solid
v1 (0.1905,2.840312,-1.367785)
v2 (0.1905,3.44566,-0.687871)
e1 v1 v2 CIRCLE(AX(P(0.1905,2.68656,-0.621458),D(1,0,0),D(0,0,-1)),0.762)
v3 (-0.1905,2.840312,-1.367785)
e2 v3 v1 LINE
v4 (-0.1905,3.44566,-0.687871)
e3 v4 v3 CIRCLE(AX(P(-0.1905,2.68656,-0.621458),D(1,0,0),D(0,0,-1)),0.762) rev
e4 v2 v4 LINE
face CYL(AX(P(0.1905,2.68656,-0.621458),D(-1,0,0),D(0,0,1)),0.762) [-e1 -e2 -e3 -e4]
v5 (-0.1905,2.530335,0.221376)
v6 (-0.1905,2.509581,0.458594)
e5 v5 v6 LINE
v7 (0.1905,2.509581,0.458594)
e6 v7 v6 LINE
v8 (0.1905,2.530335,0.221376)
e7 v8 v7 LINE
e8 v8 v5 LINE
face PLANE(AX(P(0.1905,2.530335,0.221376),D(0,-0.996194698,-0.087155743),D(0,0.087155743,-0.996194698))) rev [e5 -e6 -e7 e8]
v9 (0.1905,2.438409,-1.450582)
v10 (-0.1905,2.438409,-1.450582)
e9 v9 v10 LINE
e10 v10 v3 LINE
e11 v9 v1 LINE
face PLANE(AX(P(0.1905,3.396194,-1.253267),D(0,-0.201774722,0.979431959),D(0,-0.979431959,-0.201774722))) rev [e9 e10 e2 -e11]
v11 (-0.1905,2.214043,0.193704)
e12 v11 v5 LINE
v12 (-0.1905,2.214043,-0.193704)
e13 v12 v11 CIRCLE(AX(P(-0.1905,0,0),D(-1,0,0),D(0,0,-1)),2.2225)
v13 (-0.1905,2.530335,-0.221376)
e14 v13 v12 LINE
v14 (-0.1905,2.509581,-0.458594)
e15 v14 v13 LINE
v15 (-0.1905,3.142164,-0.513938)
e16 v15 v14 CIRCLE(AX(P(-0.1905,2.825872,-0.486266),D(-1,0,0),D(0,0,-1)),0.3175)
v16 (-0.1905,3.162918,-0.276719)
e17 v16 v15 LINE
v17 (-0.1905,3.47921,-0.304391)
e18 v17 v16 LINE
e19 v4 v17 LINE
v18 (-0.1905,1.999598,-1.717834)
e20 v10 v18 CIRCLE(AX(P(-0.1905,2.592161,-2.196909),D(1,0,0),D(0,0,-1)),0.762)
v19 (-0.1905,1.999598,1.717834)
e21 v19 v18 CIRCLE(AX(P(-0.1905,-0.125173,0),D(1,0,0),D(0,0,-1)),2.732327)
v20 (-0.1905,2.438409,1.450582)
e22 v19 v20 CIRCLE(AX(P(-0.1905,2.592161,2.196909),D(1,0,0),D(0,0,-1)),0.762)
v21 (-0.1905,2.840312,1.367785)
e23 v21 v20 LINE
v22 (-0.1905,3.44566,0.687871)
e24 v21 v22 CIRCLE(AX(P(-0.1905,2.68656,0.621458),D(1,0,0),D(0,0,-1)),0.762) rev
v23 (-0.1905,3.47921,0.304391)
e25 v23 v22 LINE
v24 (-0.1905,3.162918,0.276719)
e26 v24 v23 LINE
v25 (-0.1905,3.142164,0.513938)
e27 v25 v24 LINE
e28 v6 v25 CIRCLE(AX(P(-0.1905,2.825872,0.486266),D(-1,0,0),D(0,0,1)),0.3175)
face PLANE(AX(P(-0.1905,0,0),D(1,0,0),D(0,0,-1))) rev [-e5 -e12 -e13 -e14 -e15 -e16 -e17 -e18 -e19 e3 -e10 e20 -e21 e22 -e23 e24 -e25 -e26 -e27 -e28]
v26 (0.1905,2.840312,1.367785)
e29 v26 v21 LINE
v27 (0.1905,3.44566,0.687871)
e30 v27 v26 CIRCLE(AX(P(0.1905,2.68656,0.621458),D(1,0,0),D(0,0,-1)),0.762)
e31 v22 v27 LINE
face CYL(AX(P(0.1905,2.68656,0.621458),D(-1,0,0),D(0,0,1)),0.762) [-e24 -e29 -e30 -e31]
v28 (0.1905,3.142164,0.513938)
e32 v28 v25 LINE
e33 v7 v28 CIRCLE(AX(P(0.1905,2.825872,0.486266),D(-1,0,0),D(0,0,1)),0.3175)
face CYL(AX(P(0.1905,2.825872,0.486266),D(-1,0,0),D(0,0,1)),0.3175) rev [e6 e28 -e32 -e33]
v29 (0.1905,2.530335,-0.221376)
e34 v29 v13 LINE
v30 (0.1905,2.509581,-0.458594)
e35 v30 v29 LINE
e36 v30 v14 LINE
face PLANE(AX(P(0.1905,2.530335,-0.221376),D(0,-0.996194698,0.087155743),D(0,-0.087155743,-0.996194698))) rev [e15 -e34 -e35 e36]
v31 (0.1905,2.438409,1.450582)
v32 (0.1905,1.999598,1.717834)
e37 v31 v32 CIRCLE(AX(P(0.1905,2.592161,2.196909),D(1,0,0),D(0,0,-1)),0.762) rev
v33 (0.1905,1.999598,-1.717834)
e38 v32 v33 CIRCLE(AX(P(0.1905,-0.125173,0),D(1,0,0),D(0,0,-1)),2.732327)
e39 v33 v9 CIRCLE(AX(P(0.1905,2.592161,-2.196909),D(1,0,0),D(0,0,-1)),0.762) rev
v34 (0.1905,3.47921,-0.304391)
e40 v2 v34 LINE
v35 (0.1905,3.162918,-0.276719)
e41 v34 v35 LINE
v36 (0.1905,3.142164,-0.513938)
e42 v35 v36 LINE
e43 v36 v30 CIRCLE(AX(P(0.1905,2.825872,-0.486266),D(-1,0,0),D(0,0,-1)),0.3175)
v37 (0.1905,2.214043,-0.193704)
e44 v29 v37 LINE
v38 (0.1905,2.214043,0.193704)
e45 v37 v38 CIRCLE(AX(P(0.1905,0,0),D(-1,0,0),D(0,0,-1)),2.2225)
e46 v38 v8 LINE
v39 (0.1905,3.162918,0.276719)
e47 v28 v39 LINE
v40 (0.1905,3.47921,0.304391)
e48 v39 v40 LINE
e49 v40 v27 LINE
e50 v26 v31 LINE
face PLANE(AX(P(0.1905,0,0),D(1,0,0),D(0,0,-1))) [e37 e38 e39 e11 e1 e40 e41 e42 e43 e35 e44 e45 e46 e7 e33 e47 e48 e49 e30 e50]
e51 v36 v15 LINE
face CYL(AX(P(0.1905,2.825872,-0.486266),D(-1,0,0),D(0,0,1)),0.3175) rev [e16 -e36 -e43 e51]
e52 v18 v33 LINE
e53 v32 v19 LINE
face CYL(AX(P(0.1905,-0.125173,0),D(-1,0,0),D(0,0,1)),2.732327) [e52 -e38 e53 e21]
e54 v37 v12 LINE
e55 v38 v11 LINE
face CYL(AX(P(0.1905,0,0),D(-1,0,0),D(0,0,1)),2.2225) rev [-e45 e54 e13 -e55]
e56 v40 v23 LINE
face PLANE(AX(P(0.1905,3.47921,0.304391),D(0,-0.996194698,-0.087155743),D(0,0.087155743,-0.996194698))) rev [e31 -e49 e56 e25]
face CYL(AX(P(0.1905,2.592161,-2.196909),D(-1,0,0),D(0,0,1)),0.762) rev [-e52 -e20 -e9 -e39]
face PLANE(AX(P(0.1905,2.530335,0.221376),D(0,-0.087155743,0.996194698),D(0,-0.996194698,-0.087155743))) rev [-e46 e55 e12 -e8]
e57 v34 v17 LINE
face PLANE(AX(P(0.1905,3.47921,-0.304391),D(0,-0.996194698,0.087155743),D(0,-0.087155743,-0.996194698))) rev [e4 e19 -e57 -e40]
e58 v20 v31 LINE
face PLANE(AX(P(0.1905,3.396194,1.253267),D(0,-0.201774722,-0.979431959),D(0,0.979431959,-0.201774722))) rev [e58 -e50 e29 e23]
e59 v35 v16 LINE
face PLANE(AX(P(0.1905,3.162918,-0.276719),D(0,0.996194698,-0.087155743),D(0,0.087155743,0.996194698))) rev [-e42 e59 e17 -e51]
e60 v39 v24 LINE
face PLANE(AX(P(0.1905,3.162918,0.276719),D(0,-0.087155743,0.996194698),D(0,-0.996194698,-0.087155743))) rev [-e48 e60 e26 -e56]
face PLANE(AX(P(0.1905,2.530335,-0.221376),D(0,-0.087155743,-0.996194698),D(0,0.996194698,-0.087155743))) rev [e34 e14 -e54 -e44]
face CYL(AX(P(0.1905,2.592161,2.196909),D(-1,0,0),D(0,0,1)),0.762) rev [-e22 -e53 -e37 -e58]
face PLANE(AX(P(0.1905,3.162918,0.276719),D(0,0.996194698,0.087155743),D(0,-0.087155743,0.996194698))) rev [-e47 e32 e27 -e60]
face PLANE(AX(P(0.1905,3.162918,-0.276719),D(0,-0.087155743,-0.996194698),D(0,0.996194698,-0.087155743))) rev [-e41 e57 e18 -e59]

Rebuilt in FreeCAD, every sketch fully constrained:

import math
import FreeCAD as App
import Part
import Sketcher
from FreeCAD import Vector
Q = App.Units.Quantity


def edges_at(feature, points):
    """Names of the edges that pass closest to the given points."""
    edges = feature.Shape.Edges
    near = lambda p: min(range(len(edges)), key=lambda i: edges[i].distToShape(Part.Vertex(*p))[0])
    return sorted({f"Edge{near(p) + 1}" for p in points})

doc = App.newDocument("Part")
body = doc.addObject("PartDesign::Body", "Body")

# Sketch on YZ plane
sketch1 = body.newObject("Sketcher::SketchObject", "Sketch")
sketch1.AttachmentSupport = (doc.getObject("YZ_Plane"), [""])
sketch1.MapMode = "FlatFace"
sketch1.addGeometry([
    Part.LineSegment(Vector(3.4, -1.25, 0), Vector(3.48, -0.3, 0)),  # 0
    Part.LineSegment(Vector(3.48, -0.3, 0), Vector(3.16, -0.28, 0)),  # 1
    Part.LineSegment(Vector(3.16, -0.28, 0), Vector(3.14, -0.51, 0)),  # 2
    Part.ArcOfCircle(Part.Circle(Vector(2.83, -0.49, 0), Vector(0, 0, 1), 0.32), math.radians(175), math.radians(355)),  # 3
    Part.LineSegment(Vector(2.51, -0.46, 0), Vector(2.53, -0.22, 0)),  # 4
    Part.LineSegment(Vector(2.53, -0.22, 0), Vector(2.21, -0.19, 0)),  # 5
    Part.ArcOfCircle(Part.Circle(Vector(0, 0, 0), Vector(0, 0, 1), 2.22), math.radians(5), math.radians(355)),  # 6
    Part.LineSegment(Vector(2.21, 0.19, 0), Vector(2.53, 0.22, 0)),  # 7
    Part.LineSegment(Vector(2.53, 0.22, 0), Vector(2.51, 0.46, 0)),  # 8
    Part.ArcOfCircle(Part.Circle(Vector(2.83, 0.49, 0), Vector(0, 0, 1), 0.32), math.radians(5), math.radians(185)),  # 9
    Part.LineSegment(Vector(3.14, 0.51, 0), Vector(3.16, 0.28, 0)),  # 10
    Part.LineSegment(Vector(3.16, 0.28, 0), Vector(3.48, 0.3, 0)),  # 11
    Part.LineSegment(Vector(3.48, 0.3, 0), Vector(3.4, 1.25, 0)),  # 12
    Part.LineSegment(Vector(3.4, 1.25, 0), Vector(2.15, 1.51, 0)),  # 13
    Part.ArcOfCircle(Part.Circle(Vector(-0.13, 0, 0), Vector(0, 0, 1), 2.73), math.radians(34), math.radians(326)),  # 14
    Part.LineSegment(Vector(2.15, -1.51, 0), Vector(3.4, -1.25, 0)),  # 15
], False)
sketch1.addConstraint([
    Sketcher.Constraint("Coincident", 0, 2, 1, 1),
    Sketcher.Constraint("Coincident", 1, 2, 2, 1),
    Sketcher.Constraint("Tangent", 2, 2, 3, 2),
    Sketcher.Constraint("Tangent", 3, 1, 4, 1),
    Sketcher.Constraint("Coincident", 4, 2, 5, 1),
    Sketcher.Constraint("Coincident", 5, 2, 6, 2),
    Sketcher.Constraint("Coincident", 6, 1, 7, 1),
    Sketcher.Constraint("Coincident", 7, 2, 8, 1),
    Sketcher.Constraint("Tangent", 8, 2, 9, 2),
    Sketcher.Constraint("Tangent", 9, 1, 10, 1),
    Sketcher.Constraint("Coincident", 10, 2, 11, 1),
    Sketcher.Constraint("Coincident", 11, 2, 12, 1),
    Sketcher.Constraint("Coincident", 12, 2, 13, 1),
    Sketcher.Constraint("Coincident", 13, 2, 14, 1),
    Sketcher.Constraint("Coincident", 14, 2, 15, 1),
    Sketcher.Constraint("Coincident", 15, 2, 0, 1),
    Sketcher.Constraint("Coincident", 6, 3, -1, 1),
    Sketcher.Constraint("Equal", 3, 9),
    Sketcher.Constraint("Symmetric", 3, 3, 9, 3, -1),
    Sketcher.Constraint("Symmetric", 4, 2, 7, 2, -1),
    Sketcher.Constraint("Symmetric", 1, 2, 10, 2, -1),
    Sketcher.Constraint("Symmetric", 0, 2, 11, 2, -1),
    Sketcher.Constraint("Symmetric", 13, 2, 14, 2, -1),
    Sketcher.Constraint("Symmetric", 12, 2, 15, 2, -1),
    Sketcher.Constraint("Perpendicular", 0, 1),
    Sketcher.Constraint("Perpendicular", 1, 2),
    Sketcher.Constraint("Parallel", 2, 4),
    Sketcher.Constraint("Perpendicular", 4, 5),
    Sketcher.Constraint("Perpendicular", 7, 8),
    Sketcher.Constraint("Equal", 2, 4),
    Sketcher.Constraint("Equal", 1, 5),
    Sketcher.Constraint("Angle", 0, Q("85 deg")),
    Sketcher.Constraint("Radius", 3, Q("0.0125 in")),
    Sketcher.Constraint("Radius", 6, Q("0.0875 in")),
    Sketcher.Constraint("Distance", 13, Q("0.05 in")),
    Sketcher.Constraint("Distance", 0, Q("0.0375 in")),
    Sketcher.Constraint("Distance", 1, Q("0.0125 in")),
    Sketcher.Constraint("Radius", 14, 2.732327),
    Sketcher.Constraint("DistanceY", 3, 1, 6, 1, 0.652298),
    Sketcher.Constraint("DistanceY", 9, 3, 12, 2, 0.767),
    Sketcher.Constraint("DistanceY", -1, 1, 13, 2, 1.509521),
])
pad1 = body.newObject("PartDesign::Pad", "Pad")
pad1.Profile = sketch1
pad1.Length = Q("0.015 in")
pad1.Midplane = True
doc.recompute()

fillet = body.newObject("PartDesign::Fillet", "Fillet")
fillet.Base = (pad1, edges_at(pad1, [
    (0, 3.396, -1.253),
    (0, 2.152, -1.51),
    (0, 2.152, 1.51),
    (0, 3.396, 1.253),
]))
fillet.Radius = Q("0.03 in")

doc.recompute()
